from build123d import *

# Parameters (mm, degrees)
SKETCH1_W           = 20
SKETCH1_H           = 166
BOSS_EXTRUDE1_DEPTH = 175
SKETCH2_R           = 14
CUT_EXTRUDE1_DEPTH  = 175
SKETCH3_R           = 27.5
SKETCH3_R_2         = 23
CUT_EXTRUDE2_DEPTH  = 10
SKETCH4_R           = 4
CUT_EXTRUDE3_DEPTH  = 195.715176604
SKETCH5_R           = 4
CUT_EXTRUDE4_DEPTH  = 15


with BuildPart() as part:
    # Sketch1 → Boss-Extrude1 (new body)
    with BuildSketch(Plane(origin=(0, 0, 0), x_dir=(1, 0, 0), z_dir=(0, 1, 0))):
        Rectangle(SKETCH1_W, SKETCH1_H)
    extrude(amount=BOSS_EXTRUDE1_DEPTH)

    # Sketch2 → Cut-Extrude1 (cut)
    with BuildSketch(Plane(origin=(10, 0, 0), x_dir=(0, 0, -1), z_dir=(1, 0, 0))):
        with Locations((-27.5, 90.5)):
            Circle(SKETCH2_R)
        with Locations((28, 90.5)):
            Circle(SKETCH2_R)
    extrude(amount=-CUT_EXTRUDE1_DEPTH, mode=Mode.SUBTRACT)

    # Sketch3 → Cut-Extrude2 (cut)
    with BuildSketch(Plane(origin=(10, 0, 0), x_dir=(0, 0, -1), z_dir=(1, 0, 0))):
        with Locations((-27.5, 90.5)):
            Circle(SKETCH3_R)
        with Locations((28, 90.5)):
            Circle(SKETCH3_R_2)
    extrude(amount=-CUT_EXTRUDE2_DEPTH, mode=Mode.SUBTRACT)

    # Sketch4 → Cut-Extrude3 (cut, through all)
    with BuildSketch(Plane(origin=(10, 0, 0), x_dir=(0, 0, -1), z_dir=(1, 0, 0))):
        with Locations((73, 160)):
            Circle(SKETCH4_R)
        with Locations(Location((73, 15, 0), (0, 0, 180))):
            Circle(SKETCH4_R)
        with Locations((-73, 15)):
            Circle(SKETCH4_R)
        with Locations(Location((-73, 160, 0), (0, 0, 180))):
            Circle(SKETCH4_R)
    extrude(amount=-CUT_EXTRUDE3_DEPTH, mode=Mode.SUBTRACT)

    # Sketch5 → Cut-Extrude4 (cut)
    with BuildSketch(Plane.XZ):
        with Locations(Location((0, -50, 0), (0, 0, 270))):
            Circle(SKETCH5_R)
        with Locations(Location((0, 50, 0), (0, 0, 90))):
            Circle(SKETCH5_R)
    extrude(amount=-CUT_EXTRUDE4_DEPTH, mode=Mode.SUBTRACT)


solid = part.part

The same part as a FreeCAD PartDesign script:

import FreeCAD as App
import Part
import Sketcher

V = App.Vector
Q = App.Units.Quantity


def add_polygon(sketch, points):
    """Adds a closed chain of lines whose ends are joined by coincident constraints."""
    first, n = sketch.GeometryCount, len(points)
    for a, b in zip(points, points[1:] + points[:1]):
        sketch.addGeometry(Part.LineSegment(App.Vector(*a, 0), App.Vector(*b, 0)), False)
    for i in range(n):
        sketch.addConstraint(Sketcher.Constraint("Coincident", first + i, 2, first + (i + 1) % n, 1))

doc = App.newDocument("Part")
body = doc.addObject("PartDesign::Body", "Body")

sketch1 = body.newObject("Sketcher::SketchObject", "Sketch")
sketch1.AttachmentSupport = (doc.getObject("XZ_Plane"), [""])
sketch1.MapMode = "FlatFace"
add_polygon(sketch1, [(-10, -83), (-10, 83), (10, 83), (10, -83)])
sketch1.addConstraint(Sketcher.Constraint("Vertical", 0))
sketch1.addConstraint(Sketcher.Constraint("Horizontal", 1))
sketch1.addConstraint(Sketcher.Constraint("Vertical", 2))
sketch1.addConstraint(Sketcher.Constraint("Horizontal", 3))
sketch1.addConstraint(Sketcher.Constraint("Symmetric", 0, 2, 2, 2, -1, 1))
sketch1.addConstraint(Sketcher.Constraint("DistanceX", 1, 1, 1, 2, Q("20 mm")))
sketch1.addConstraint(Sketcher.Constraint("DistanceY", 0, 1, 0, 2, Q("166 mm")))
pad1 = body.newObject("PartDesign::Pad", "Pad")
pad1.Profile = sketch1
pad1.Length = 175
pad1.Reversed = True

sketch2 = body.newObject("Sketcher::SketchObject", "Sketch001")
sketch2.AttachmentSupport = (doc.getObject("YZ_Plane"), [""])
sketch2.MapMode = "FlatFace"
sketch2.AttachmentOffset = App.Placement(V(0, 0, 10), App.Rotation())
sketch2.addGeometry(Part.Circle(V(90.5, 27.5, 0), V(0, 0, 1), 14), False)
sketch2.addGeometry(Part.Circle(V(90.5, -28, 0), V(0, 0, 1), 14), False)
sketch2.addConstraint(Sketcher.Constraint("Equal", 0, 1))
sketch2.addConstraint(Sketcher.Constraint("Vertical", 0, 3, 1, 3))
sketch2.addConstraint(Sketcher.Constraint("Diameter", 0, Q("28 mm")))
sketch2.addConstraint(Sketcher.Constraint("DistanceY", 1, 3, -1, 1, Q("28 mm")))
sketch2.addConstraint(Sketcher.Constraint("DistanceX", -1, 1, 0, 3, Q("90.5 mm")))
sketch2.addConstraint(Sketcher.Constraint("DistanceY", -1, 1, 0, 3, Q("27.5 mm")))
pocket1 = body.newObject("PartDesign::Pocket", "Pocket")
pocket1.Profile = sketch2
pocket1.Length = 175

sketch3 = body.newObject("Sketcher::SketchObject", "Sketch002")
sketch3.AttachmentSupport = (doc.getObject("YZ_Plane"), [""])
sketch3.MapMode = "FlatFace"
sketch3.AttachmentOffset = App.Placement(V(0, 0, 10), App.Rotation())
sketch3.addGeometry(Part.Circle(V(90.5, 27.5, 0), V(0, 0, 1), 27.5), False)
sketch3.addGeometry(Part.Circle(V(90.5, -28, 0), V(0, 0, 1), 23), False)
sketch3.addConstraint(Sketcher.Constraint("Vertical", 0, 3, 1, 3))
sketch3.addConstraint(Sketcher.Constraint("Diameter", 0, Q("55 mm")))
sketch3.addConstraint(Sketcher.Constraint("Diameter", 1, Q("46 mm")))
sketch3.addConstraint(Sketcher.Constraint("DistanceY", 1, 3, -1, 1, Q("28 mm")))
sketch3.addConstraint(Sketcher.Constraint("DistanceX", -1, 1, 0, 3, Q("90.5 mm")))
sketch3.addConstraint(Sketcher.Constraint("DistanceY", -1, 1, 0, 3, Q("27.5 mm")))
pocket2 = body.newObject("PartDesign::Pocket", "Pocket001")
pocket2.Profile = sketch3
pocket2.Length = 10

sketch4 = body.newObject("Sketcher::SketchObject", "Sketch003")
sketch4.AttachmentSupport = (doc.getObject("YZ_Plane"), [""])
sketch4.MapMode = "FlatFace"
sketch4.AttachmentOffset = App.Placement(V(0, 0, 10), App.Rotation())
sketch4.addGeometry(Part.Circle(V(160, -73, 0), V(0, 0, 1), 4), False)
sketch4.addGeometry(Part.Circle(V(15, -73, 0), V(0, 0, 1), 4), False)
sketch4.addGeometry(Part.Circle(V(15, 73, 0), V(0, 0, 1), 4), False)
sketch4.addGeometry(Part.Circle(V(160, 73, 0), V(0, 0, 1), 4), False)
sketch4.addConstraint(Sketcher.Constraint("Equal", 0, 1))
sketch4.addConstraint(Sketcher.Constraint("Equal", 1, 2))
sketch4.addConstraint(Sketcher.Constraint("Equal", 2, 3))
sketch4.addConstraint(Sketcher.Constraint("Symmetric", 1, 3, 2, 3, -1))
sketch4.addConstraint(Sketcher.Constraint("Symmetric", 0, 3, 3, 3, -1))
sketch4.addConstraint(Sketcher.Constraint("Horizontal", 0, 3, 1, 3))
sketch4.addConstraint(Sketcher.Constraint("Diameter", 0, Q("8 mm")))
sketch4.addConstraint(Sketcher.Constraint("DistanceX", -1, 1, 0, 3, Q("160 mm")))
sketch4.addConstraint(Sketcher.Constraint("DistanceY", 0, 3, -1, 1, Q("73 mm")))
sketch4.addConstraint(Sketcher.Constraint("DistanceX", -1, 1, 1, 3, Q("15 mm")))
pocket3 = body.newObject("PartDesign::Pocket", "Pocket002")
pocket3.Profile = sketch4
pocket3.Type = "ThroughAll"

sketch5 = body.newObject("Sketcher::SketchObject", "Sketch004")
sketch5.AttachmentSupport = (doc.getObject("XZ_Plane"), [""])
sketch5.MapMode = "FlatFace"
sketch5.addGeometry(Part.Circle(V(0, -50, 0), V(0, 0, 1), 4), False)
sketch5.addGeometry(Part.Circle(V(0, 50, 0), V(0, 0, 1), 4), False)
sketch5.addConstraint(Sketcher.Constraint("Equal", 0, 1))
sketch5.addConstraint(Sketcher.Constraint("Symmetric", 0, 3, 1, 3, -1, 1))
sketch5.addConstraint(Sketcher.Constraint("PointOnObject", 0, 3, -2))
sketch5.addConstraint(Sketcher.Constraint("Diameter", 0, Q("8 mm")))
sketch5.addConstraint(Sketcher.Constraint("DistanceY", 0, 3, -1, 1, Q("50 mm")))
pocket4 = body.newObject("PartDesign::Pocket", "Pocket003")
pocket4.Profile = sketch5
pocket4.Length = 15

doc.recompute()
